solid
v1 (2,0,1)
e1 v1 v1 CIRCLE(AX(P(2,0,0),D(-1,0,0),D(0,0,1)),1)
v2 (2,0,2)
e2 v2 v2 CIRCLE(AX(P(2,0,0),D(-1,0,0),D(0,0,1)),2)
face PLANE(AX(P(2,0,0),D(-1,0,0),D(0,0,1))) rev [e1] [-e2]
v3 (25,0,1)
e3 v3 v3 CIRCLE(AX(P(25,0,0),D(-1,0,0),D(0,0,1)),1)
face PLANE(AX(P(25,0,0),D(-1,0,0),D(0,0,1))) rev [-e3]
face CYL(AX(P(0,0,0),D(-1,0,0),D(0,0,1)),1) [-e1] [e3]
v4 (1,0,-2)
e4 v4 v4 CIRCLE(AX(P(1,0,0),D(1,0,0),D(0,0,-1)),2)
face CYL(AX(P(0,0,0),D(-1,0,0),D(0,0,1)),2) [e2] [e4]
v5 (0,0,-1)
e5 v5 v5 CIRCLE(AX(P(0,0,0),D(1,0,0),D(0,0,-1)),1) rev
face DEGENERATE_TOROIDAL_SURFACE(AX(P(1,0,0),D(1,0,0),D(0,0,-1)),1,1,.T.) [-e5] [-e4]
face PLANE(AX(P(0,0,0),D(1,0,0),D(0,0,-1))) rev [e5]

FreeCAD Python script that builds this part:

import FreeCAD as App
import Part
import Sketcher

V = App.Vector
Q = App.Units.Quantity


def edges_at(feature, points):
    """Names of the edges that pass closest to the given points."""
    edges = feature.Shape.Edges
    near = lambda p: min(range(len(edges)), key=lambda i: edges[i].distToShape(Part.Vertex(*p))[0])
    return sorted({f"Edge{near(p) + 1}" for p in points})

doc = App.newDocument("Part")
params = doc.addObject("Spreadsheet::Sheet", "Params")
for row, (alias, value) in enumerate([
    ("sketch1_width", "2 mm"),
    ("sketch1_width2", "25 mm"),
    ("revolution_angle", "360 deg"),
    ("fillet_radius", "1 mm"),
], start=1):
    params.set(f"A{row}", alias)
    params.set(f"B{row}", "=" + value)
    params.setAlias(f"B{row}", alias)

body = doc.addObject("PartDesign::Body", "Body")

sketch1 = body.newObject("Sketcher::SketchObject", "Sketch")
sketch1.AttachmentSupport = (doc.getObject("XY_Plane"), [""])
sketch1.MapMode = "FlatFace"
sketch1.addGeometry(Part.LineSegment(V(2, 2, 0), V(0, 2, 0)), False)
sketch1.addGeometry(Part.LineSegment(V(0, 2, 0), V(0, 0, 0)), False)
sketch1.addGeometry(Part.LineSegment(V(0, 0, 0), V(25, 0, 0)), False)
sketch1.addGeometry(Part.LineSegment(V(25, 0, 0), V(25, 1, 0)), False)
sketch1.addGeometry(Part.LineSegment(V(25, 1, 0), V(2, 1, 0)), False)
sketch1.addGeometry(Part.LineSegment(V(2, 1, 0), V(2, 2, 0)), False)
sketch1.addConstraint(Sketcher.Constraint("Coincident", 0, 2, 1, 1))
sketch1.addConstraint(Sketcher.Constraint("Coincident", 1, 2, 2, 1))
sketch1.addConstraint(Sketcher.Constraint("Coincident", 2, 2, 3, 1))
sketch1.addConstraint(Sketcher.Constraint("Coincident", 3, 2, 4, 1))
sketch1.addConstraint(Sketcher.Constraint("Coincident", 4, 2, 5, 1))
sketch1.addConstraint(Sketcher.Constraint("Coincident", 5, 2, 0, 1))
sketch1.addConstraint(Sketcher.Constraint("Horizontal", 0))
sketch1.addConstraint(Sketcher.Constraint("Vertical", 1))
sketch1.addConstraint(Sketcher.Constraint("Horizontal", 2))
sketch1.addConstraint(Sketcher.Constraint("Vertical", 3))
sketch1.addConstraint(Sketcher.Constraint("Horizontal", 4))
sketch1.addConstraint(Sketcher.Constraint("Vertical", 5))
sketch1.addConstraint(Sketcher.Constraint("Coincident", 1, 2, -1, 1))
sketch1.addConstraint(Sketcher.Constraint("Equal", 0, 1))
sketch1.addConstraint(Sketcher.Constraint("Equal", 3, 5))
sketch1.addConstraint(Sketcher.Constraint("DistanceX", 0, 2, 0, 1, Q("2 mm")))
sketch1.addConstraint(Sketcher.Constraint("DistanceX", 2, 1, 2, 2, Q("25 mm")))
sketch1.setExpression("Constraints[15]", "Params.sketch1_width")
sketch1.setExpression("Constraints[16]", "Params.sketch1_width2")
revolution = body.newObject("PartDesign::Revolution", "Revolution")
revolution.Profile = sketch1
revolution.ReferenceAxis = (sketch1, ["H_Axis"])
revolution.setExpression("Angle", "Params.revolution_angle")
doc.recompute()

fillet = body.newObject("PartDesign::Fillet", "Fillet")
fillet.Base = (revolution, edges_at(revolution, [(0, 0, -2)]))
fillet.setExpression("Radius", "Params.fillet_radius")

doc.recompute()
